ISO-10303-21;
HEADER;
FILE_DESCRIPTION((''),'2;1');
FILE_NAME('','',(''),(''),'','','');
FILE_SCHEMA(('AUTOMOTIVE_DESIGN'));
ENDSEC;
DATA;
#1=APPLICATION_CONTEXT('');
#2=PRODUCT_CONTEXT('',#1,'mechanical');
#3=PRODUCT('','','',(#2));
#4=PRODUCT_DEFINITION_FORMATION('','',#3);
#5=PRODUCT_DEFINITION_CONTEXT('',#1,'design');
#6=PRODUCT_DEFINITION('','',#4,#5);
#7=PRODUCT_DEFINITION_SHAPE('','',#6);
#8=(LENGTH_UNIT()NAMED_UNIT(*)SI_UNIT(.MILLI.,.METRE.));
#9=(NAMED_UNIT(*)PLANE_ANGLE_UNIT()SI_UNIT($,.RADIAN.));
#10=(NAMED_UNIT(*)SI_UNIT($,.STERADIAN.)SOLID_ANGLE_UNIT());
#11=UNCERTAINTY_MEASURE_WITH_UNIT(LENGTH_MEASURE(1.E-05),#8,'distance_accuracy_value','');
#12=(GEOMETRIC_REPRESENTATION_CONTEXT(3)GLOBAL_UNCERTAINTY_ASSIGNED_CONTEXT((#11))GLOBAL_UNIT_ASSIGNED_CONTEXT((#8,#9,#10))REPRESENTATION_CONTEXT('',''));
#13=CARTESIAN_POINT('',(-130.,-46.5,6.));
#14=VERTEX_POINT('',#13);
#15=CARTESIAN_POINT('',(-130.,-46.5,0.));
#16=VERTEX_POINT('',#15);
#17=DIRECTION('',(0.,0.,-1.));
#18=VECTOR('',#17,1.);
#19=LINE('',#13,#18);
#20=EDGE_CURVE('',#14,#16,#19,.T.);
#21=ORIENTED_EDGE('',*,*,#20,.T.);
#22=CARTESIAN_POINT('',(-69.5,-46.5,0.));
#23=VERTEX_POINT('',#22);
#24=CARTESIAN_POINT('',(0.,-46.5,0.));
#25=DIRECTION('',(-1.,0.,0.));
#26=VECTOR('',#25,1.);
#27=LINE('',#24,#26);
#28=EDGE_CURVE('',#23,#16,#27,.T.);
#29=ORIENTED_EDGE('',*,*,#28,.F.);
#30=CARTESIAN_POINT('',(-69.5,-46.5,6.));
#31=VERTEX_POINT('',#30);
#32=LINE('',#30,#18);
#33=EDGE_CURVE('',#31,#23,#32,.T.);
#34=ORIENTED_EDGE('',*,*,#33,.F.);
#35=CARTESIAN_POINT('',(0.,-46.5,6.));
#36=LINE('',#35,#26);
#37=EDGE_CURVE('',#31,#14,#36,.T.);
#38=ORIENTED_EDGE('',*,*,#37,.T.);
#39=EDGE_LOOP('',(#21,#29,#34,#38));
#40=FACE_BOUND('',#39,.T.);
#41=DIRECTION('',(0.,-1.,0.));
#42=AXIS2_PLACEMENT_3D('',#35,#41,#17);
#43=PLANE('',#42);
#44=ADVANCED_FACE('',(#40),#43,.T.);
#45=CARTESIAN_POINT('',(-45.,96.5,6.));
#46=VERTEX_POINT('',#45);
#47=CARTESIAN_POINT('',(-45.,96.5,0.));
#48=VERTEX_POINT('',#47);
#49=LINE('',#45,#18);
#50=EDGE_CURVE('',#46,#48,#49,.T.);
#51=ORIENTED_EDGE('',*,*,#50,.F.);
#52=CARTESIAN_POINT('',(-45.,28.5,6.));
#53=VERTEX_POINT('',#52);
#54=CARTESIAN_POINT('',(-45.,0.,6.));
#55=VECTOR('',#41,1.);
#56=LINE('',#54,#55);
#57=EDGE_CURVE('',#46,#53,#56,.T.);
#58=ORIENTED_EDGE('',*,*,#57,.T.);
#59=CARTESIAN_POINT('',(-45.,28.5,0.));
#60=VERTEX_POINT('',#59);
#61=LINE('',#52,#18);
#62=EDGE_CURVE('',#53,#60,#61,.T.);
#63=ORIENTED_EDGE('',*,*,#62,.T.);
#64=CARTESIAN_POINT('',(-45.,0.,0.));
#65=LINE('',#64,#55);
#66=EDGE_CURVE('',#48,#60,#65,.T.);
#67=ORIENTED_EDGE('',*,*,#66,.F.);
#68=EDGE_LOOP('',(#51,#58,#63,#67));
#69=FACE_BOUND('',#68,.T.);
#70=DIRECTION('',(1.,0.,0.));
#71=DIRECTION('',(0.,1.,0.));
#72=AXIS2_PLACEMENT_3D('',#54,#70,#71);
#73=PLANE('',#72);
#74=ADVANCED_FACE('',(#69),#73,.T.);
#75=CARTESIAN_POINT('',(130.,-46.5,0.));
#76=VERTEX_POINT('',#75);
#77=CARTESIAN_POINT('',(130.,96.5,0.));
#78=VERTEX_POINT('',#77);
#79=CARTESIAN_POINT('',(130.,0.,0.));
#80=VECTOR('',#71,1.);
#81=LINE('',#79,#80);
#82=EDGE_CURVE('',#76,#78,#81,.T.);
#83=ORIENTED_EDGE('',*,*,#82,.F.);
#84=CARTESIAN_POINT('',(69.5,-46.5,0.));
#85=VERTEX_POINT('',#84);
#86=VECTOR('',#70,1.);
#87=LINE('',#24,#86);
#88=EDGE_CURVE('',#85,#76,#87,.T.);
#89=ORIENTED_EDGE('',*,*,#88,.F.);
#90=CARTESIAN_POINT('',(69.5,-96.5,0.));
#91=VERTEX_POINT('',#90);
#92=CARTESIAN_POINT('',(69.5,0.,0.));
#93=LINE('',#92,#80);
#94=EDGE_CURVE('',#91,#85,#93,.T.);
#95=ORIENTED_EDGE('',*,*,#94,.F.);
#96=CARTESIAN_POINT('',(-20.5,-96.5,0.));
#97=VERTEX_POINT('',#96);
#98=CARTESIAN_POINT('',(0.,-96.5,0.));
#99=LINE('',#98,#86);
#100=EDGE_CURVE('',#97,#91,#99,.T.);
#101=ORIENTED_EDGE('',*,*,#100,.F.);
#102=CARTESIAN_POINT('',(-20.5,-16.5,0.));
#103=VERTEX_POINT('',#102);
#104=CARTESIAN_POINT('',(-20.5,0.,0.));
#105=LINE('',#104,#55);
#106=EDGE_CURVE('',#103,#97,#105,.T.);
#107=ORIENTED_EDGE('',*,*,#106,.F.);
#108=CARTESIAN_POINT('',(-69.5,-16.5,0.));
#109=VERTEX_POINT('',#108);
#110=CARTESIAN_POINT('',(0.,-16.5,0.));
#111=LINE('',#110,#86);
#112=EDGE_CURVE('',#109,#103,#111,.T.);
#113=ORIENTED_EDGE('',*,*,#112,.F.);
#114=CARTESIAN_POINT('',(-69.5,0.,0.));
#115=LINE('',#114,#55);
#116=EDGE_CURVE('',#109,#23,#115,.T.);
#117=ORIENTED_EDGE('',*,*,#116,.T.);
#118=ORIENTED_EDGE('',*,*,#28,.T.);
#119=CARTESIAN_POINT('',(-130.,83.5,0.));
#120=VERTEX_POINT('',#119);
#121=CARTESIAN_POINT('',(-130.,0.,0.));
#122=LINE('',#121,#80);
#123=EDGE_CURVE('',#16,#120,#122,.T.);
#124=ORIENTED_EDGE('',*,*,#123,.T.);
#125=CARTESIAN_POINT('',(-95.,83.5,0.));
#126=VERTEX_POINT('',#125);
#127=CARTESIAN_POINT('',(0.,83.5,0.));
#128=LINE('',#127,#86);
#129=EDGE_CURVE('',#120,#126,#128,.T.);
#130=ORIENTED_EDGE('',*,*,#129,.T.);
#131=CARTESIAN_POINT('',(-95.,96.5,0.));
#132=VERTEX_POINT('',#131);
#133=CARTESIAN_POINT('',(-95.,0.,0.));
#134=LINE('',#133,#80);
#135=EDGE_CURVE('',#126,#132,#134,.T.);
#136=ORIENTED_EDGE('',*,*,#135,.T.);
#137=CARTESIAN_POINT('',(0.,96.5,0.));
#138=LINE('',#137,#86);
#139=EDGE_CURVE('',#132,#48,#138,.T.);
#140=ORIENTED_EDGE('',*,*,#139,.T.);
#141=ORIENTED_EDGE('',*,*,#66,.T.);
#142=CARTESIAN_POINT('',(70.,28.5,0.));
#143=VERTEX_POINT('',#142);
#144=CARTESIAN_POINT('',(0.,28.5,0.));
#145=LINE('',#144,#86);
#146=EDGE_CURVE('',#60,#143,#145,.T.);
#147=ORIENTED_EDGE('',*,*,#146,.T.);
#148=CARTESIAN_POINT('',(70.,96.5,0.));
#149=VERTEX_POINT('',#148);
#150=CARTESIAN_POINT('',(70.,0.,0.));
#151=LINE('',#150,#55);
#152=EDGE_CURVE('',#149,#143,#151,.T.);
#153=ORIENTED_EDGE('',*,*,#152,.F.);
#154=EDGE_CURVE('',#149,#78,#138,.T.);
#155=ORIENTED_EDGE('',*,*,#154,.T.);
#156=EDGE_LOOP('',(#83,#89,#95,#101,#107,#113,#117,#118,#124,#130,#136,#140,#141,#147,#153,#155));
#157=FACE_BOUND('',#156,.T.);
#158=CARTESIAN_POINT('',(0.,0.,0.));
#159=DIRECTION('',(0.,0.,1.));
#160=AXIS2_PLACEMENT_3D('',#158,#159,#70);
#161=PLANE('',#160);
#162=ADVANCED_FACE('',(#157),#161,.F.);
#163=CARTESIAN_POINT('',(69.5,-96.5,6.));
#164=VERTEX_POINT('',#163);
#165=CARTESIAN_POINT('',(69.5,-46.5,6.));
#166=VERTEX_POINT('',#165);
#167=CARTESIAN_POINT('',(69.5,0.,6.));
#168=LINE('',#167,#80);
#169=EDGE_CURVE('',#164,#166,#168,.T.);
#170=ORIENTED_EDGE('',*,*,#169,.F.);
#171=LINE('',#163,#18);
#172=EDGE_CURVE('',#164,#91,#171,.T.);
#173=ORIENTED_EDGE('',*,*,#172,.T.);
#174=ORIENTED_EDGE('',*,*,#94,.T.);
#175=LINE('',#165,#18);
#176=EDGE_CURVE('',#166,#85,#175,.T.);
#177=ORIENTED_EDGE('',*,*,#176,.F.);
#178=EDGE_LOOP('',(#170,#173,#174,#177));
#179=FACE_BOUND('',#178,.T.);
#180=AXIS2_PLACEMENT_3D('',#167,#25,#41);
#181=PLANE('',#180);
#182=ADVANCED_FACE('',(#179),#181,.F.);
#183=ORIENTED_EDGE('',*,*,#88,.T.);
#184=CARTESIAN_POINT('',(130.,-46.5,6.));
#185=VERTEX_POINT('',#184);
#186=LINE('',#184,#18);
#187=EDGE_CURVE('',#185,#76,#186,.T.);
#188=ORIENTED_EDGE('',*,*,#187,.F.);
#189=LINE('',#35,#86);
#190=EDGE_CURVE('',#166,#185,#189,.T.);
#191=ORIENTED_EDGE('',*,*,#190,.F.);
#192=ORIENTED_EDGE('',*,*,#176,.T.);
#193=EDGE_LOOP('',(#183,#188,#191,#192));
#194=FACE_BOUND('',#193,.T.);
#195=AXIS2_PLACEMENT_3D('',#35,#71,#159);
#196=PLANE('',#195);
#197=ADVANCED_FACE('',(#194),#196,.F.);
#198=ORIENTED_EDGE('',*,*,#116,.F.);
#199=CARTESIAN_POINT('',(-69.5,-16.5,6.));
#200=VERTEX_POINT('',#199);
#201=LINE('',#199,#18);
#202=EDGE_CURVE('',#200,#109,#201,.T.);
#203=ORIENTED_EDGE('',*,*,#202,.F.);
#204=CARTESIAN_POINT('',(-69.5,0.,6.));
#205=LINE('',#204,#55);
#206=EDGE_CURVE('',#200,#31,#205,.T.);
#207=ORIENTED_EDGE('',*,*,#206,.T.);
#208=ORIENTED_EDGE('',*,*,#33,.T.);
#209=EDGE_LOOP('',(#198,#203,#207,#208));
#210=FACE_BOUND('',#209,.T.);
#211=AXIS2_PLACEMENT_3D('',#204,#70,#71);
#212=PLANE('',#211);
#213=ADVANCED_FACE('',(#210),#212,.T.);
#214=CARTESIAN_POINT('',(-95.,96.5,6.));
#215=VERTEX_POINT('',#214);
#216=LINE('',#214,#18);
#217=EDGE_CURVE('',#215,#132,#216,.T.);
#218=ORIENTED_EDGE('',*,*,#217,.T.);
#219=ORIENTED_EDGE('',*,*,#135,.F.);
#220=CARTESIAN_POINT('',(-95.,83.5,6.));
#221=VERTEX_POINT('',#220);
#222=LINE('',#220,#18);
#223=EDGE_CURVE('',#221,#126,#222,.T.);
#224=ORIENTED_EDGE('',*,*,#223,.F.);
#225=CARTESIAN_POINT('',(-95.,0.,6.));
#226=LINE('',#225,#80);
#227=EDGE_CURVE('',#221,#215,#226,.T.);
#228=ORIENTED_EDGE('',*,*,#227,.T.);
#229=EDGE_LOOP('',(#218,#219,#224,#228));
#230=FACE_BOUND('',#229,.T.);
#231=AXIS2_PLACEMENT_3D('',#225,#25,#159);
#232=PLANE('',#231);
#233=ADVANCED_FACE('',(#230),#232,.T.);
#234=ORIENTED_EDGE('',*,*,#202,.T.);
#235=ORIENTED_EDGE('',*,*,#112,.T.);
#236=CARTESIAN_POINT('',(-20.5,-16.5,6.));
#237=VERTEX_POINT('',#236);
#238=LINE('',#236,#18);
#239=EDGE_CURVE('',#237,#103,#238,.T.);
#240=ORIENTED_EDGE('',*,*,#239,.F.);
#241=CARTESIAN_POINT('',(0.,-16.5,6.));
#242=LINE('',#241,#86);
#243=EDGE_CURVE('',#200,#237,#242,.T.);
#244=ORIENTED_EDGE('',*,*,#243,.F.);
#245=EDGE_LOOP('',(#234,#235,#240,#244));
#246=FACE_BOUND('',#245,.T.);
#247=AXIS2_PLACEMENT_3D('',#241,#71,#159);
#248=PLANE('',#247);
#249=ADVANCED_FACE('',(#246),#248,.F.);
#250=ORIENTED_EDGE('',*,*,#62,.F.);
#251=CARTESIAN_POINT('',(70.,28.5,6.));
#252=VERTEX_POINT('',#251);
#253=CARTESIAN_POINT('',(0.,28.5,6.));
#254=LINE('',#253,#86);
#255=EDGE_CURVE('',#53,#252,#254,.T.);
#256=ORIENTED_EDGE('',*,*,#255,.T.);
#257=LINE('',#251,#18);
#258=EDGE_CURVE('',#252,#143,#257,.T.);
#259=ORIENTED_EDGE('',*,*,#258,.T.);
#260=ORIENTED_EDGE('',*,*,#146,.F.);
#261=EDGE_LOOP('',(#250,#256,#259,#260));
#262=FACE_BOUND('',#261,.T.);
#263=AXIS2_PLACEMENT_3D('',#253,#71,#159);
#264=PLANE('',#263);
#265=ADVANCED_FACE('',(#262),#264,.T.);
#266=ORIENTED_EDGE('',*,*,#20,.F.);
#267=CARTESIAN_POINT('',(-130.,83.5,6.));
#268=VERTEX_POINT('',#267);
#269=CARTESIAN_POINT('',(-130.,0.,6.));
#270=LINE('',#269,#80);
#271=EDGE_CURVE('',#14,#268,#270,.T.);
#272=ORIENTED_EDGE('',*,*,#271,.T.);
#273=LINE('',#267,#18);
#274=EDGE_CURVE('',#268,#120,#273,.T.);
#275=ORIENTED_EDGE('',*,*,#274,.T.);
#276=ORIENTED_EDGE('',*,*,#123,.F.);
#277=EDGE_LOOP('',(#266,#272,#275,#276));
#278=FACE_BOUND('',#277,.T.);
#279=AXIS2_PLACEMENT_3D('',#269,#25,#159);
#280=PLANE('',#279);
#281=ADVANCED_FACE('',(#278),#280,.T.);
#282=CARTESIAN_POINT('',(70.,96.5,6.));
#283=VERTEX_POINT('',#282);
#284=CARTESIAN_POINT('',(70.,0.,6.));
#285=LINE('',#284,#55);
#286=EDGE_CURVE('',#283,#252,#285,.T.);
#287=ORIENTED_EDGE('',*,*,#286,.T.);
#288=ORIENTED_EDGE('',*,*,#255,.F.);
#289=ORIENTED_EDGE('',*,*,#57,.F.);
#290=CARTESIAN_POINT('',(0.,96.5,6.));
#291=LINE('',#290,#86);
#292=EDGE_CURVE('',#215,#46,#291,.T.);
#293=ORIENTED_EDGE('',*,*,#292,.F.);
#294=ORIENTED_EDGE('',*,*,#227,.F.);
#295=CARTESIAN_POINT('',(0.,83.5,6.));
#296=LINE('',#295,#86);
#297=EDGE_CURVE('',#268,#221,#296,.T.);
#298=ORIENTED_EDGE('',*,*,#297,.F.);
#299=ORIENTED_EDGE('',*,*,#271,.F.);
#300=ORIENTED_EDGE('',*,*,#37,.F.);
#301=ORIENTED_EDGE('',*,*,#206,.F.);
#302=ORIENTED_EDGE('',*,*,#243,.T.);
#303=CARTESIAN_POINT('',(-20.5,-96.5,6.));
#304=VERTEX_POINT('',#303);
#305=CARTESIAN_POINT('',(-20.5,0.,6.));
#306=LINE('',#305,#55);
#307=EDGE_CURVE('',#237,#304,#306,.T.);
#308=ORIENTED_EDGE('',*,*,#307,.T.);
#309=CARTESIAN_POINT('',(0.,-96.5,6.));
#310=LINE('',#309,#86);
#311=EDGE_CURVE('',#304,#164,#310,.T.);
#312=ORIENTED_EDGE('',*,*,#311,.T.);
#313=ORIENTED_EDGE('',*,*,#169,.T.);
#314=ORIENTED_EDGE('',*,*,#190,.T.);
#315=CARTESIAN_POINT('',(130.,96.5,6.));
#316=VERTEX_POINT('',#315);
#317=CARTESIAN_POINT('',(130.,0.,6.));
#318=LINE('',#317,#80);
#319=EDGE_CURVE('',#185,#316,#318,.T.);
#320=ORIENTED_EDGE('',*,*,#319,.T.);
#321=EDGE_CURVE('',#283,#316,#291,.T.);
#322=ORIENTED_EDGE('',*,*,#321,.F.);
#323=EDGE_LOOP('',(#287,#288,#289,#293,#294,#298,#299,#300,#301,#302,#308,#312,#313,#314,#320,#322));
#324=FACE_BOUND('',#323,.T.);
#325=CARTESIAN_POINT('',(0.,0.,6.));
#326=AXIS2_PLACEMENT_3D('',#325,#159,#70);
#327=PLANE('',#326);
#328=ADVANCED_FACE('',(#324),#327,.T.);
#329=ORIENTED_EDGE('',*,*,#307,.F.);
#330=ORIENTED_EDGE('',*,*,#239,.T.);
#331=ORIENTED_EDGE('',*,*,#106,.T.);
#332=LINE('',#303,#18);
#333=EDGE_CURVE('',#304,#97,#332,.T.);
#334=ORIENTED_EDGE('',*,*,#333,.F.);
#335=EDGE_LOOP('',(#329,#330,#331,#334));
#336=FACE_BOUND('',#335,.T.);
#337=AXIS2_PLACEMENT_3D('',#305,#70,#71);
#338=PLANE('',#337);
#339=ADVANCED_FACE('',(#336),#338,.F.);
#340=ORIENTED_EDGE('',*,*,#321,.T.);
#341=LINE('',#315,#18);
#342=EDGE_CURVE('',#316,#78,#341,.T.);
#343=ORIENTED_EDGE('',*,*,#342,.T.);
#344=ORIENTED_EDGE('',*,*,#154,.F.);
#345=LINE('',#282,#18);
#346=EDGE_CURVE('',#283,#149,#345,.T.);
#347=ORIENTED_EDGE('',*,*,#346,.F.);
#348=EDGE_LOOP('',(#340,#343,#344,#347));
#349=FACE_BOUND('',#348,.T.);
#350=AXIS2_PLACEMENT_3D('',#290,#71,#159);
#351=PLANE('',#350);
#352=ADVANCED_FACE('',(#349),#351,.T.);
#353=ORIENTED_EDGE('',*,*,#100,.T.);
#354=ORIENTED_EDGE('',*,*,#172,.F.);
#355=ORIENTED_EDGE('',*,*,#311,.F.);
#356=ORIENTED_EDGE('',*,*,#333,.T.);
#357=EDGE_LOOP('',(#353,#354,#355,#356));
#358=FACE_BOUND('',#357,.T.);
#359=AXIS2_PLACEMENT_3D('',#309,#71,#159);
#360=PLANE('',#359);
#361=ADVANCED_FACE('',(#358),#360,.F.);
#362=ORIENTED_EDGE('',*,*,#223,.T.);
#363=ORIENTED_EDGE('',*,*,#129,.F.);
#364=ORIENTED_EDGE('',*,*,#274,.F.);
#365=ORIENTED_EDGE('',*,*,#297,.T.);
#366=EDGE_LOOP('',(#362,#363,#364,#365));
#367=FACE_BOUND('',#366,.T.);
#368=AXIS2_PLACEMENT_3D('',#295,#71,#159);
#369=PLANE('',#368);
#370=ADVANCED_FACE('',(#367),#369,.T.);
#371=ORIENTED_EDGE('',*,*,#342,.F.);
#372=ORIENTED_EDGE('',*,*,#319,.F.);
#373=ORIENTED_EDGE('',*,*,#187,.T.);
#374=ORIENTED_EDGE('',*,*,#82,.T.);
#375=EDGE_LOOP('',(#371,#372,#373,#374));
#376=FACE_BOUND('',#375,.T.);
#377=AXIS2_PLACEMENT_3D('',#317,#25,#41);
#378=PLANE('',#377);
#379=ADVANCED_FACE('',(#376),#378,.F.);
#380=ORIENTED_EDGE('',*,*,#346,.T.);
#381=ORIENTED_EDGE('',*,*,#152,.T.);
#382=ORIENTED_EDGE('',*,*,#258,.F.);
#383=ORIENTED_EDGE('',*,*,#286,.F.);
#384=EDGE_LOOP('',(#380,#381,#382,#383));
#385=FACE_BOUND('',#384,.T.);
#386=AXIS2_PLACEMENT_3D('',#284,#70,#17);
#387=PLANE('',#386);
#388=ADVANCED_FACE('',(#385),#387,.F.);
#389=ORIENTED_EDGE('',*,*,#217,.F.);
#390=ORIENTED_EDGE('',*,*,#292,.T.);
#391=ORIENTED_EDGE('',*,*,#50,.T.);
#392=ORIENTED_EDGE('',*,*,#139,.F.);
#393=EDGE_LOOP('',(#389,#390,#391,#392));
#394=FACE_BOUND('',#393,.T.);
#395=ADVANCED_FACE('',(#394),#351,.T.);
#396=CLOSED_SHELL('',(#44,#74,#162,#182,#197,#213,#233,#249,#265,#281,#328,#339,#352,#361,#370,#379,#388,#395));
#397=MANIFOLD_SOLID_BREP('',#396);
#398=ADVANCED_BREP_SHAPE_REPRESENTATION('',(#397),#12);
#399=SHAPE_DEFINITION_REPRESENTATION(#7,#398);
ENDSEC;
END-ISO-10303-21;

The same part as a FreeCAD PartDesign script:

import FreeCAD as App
import Part
import Sketcher

V = App.Vector


def add_polygon(sketch, points):
    """Adds a closed chain of lines whose ends are joined by coincident constraints."""
    first, n = sketch.GeometryCount, len(points)
    for a, b in zip(points, points[1:] + points[:1]):
        sketch.addGeometry(Part.LineSegment(App.Vector(*a, 0), App.Vector(*b, 0)), False)
    for i in range(n):
        sketch.addConstraint(Sketcher.Constraint("Coincident", first + i, 2, first + (i + 1) % n, 1))

doc = App.newDocument("Part")
body = doc.addObject("PartDesign::Body", "Body")

# Sketch on XY plane
sketch1 = doc.addObject("Sketcher::SketchObject", "Sketch")
body.addObject(sketch1)
sketch1.AttachmentSupport = (doc.XY_Plane, [""])
sketch1.MapMode = "FlatFace"
add_polygon(sketch1, [(-45, 28.5), (-45, 96.5), (-95, 96.5), (-95, 83.5), (-130, 83.5), (-130, -46.5), (-69.5, -46.5), (-69.5, -16.5), (-20.5, -16.5), (-20.5, -96.5), (69.5, -96.5), (69.5, -46.5), (130, -46.5), (130, 96.5), (70, 96.5), (70, 28.5)])  # lines 0-15
sketch1.addConstraint([
    Sketcher.Constraint("Vertical", 0),
    Sketcher.Constraint("Horizontal", 1),
    Sketcher.Constraint("Vertical", 2),
    Sketcher.Constraint("Horizontal", 3),
    Sketcher.Constraint("Vertical", 4),
    Sketcher.Constraint("Horizontal", 5),
    Sketcher.Constraint("Vertical", 6),
    Sketcher.Constraint("Horizontal", 7),
    Sketcher.Constraint("Vertical", 8),
    Sketcher.Constraint("Horizontal", 9),
    Sketcher.Constraint("Vertical", 10),
    Sketcher.Constraint("Horizontal", 11),
    Sketcher.Constraint("Vertical", 12),
    Sketcher.Constraint("Horizontal", 13),
    Sketcher.Constraint("Vertical", 14),
    Sketcher.Constraint("Horizontal", 15),
    Sketcher.Constraint("Symmetric", 5, 2, 10, 2, -2),
    Sketcher.Constraint("Horizontal", 1, 2, 12, 2),
    Sketcher.Constraint("Equal", 5, 11),
    Sketcher.Constraint("Equal", 1, 10),
    Sketcher.Constraint("DistanceX", 1, 2, 1, 1, 50.0),
    Sketcher.Constraint("DistanceX", 3, 2, 3, 1, 35.0),
    Sketcher.Constraint("DistanceX", 7, 1, 7, 2, 49.0),
    Sketcher.Constraint("DistanceX", 9, 1, 9, 2, 90.0),
    Sketcher.Constraint("DistanceX", 13, 2, 13, 1, 60.0),
    Sketcher.Constraint("DistanceX", 15, 2, 15, 1, 115.0),
    Sketcher.Constraint("DistanceY", 0, 1, 0, 2, 68.0),
    Sketcher.Constraint("DistanceY", 2, 2, 2, 1, 13.0),
    Sketcher.Constraint("DistanceY", 4, 2, 4, 1, 130.0),
    Sketcher.Constraint("DistanceY", 6, 1, 6, 2, 30.0),
    Sketcher.Constraint("DistanceY", -1, 1, 0, 2, 96.5),
])
pad1 = doc.addObject("PartDesign::Pad", "Pad")
body.addObject(pad1)
pad1.Profile = sketch1
pad1.Length = 6

doc.recompute()
